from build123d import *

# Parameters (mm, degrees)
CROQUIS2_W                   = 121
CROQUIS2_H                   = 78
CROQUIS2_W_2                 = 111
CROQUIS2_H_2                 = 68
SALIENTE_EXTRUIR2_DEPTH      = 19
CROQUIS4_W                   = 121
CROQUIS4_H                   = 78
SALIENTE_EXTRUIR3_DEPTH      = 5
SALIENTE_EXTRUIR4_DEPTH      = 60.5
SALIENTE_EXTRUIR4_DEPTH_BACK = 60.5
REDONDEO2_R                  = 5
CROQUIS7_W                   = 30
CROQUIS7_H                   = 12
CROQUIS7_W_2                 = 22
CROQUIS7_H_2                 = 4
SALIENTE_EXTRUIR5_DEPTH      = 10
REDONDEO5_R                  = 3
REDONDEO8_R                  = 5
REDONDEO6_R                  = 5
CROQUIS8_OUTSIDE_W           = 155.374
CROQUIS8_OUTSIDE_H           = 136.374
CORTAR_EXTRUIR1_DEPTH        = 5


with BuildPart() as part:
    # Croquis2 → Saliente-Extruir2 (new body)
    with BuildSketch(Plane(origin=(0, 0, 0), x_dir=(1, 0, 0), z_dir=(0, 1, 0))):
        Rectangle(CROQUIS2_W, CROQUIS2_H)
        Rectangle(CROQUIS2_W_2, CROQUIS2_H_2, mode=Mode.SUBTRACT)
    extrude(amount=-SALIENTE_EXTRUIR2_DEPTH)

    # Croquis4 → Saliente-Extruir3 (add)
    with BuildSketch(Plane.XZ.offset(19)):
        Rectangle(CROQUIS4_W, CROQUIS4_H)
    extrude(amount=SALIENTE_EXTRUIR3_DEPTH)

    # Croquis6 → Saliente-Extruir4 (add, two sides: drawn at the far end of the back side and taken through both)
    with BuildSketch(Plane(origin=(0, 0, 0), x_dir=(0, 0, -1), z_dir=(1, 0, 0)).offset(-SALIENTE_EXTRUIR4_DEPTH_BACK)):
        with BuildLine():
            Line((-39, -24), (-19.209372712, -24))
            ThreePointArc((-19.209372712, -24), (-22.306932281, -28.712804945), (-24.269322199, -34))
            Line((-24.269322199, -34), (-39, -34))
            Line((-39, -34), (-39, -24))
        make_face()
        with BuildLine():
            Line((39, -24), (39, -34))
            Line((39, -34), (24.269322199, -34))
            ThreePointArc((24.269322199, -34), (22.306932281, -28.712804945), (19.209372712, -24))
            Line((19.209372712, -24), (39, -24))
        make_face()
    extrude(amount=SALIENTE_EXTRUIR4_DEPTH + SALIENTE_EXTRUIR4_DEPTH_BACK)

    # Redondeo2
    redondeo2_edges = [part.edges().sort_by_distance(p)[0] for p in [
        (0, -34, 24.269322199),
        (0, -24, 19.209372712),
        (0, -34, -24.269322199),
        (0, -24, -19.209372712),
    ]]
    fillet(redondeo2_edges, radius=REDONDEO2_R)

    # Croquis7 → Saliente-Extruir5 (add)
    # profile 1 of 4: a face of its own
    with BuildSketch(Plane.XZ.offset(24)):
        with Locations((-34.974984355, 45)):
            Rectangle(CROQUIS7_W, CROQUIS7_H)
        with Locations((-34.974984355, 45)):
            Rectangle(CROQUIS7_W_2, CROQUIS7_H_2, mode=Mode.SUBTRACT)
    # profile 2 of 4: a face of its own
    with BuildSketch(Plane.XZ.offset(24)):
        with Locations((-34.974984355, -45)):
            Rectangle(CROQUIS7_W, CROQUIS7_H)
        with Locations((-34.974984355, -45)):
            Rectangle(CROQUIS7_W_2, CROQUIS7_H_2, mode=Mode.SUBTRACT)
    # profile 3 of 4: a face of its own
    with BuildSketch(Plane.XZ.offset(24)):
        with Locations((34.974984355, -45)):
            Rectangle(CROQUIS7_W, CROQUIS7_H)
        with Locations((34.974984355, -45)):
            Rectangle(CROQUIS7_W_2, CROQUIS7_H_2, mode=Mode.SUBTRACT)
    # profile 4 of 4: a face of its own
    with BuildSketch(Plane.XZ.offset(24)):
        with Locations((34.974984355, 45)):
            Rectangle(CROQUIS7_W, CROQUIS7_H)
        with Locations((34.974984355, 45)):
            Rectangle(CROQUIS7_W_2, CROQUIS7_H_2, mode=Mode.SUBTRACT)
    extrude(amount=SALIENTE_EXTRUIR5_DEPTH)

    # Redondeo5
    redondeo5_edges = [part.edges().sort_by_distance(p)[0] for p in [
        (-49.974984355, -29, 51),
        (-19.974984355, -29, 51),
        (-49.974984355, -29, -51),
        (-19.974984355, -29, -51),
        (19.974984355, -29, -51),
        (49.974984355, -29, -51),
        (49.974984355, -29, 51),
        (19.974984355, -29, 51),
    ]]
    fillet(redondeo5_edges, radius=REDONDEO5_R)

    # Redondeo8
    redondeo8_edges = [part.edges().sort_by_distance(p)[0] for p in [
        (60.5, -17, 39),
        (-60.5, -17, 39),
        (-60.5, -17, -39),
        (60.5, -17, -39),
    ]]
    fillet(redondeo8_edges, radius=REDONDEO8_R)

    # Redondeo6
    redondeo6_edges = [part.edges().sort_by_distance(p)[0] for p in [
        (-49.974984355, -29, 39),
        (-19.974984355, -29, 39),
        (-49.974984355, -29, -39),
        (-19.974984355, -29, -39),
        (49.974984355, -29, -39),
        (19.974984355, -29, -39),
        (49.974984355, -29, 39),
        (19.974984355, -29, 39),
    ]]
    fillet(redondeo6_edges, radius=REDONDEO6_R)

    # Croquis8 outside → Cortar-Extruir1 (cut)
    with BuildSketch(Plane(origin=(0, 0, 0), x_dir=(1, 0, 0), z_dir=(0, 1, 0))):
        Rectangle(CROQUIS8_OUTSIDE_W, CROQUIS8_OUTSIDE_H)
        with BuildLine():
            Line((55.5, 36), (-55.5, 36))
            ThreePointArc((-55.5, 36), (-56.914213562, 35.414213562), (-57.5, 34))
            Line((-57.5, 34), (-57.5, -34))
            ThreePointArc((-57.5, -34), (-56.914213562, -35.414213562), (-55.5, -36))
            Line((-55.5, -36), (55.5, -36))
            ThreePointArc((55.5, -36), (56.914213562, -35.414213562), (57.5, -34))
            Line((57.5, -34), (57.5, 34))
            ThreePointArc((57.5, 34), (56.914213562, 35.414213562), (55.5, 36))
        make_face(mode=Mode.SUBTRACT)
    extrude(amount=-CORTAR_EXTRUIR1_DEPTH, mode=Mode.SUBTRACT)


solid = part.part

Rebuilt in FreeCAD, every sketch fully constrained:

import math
import FreeCAD as App
import Part
import Sketcher

V = App.Vector


def edges_at(feature, points):
    """Names of the edges that pass closest to the given points."""
    edges = feature.Shape.Edges
    near = lambda p: min(range(len(edges)), key=lambda i: edges[i].distToShape(Part.Vertex(*p))[0])
    return sorted({f"Edge{near(p) + 1}" for p in points})

doc = App.newDocument("Part")
body = doc.addObject("PartDesign::Body", "Body")

# Sketch on XZ plane
sketch1 = body.newObject("Sketcher::SketchObject", "Sketch")
sketch1.AttachmentSupport = (doc.getObject("XZ_Plane"), [""])
sketch1.MapMode = "FlatFace"
sketch1.addGeometry([
    Part.LineSegment(V(-60, -39, 0), V(-60, 39, 0)),  # 0
    Part.LineSegment(V(-60, 39, 0), V(60, 39, 0)),  # 1
    Part.LineSegment(V(60, 39, 0), V(60, -39, 0)),  # 2
    Part.LineSegment(V(60, -39, 0), V(-60, -39, 0)),  # 3
    Part.LineSegment(V(56, 34, 0), V(-56, 34, 0)),  # 4
    Part.LineSegment(V(-56, 34, 0), V(-56, -34, 0)),  # 5
    Part.LineSegment(V(-56, -34, 0), V(56, -34, 0)),  # 6
    Part.LineSegment(V(56, -34, 0), V(56, 34, 0)),  # 7
], False)
sketch1.addConstraint([
    Sketcher.Constraint("Coincident", 0, 2, 1, 1),
    Sketcher.Constraint("Coincident", 1, 2, 2, 1),
    Sketcher.Constraint("Coincident", 2, 2, 3, 1),
    Sketcher.Constraint("Coincident", 3, 2, 0, 1),
    Sketcher.Constraint("Coincident", 4, 2, 5, 1),
    Sketcher.Constraint("Coincident", 5, 2, 6, 1),
    Sketcher.Constraint("Coincident", 6, 2, 7, 1),
    Sketcher.Constraint("Coincident", 7, 2, 4, 1),
    Sketcher.Constraint("Vertical", 0),
    Sketcher.Constraint("Horizontal", 1),
    Sketcher.Constraint("Vertical", 2),
    Sketcher.Constraint("Horizontal", 3),
    Sketcher.Constraint("Horizontal", 4),
    Sketcher.Constraint("Vertical", 5),
    Sketcher.Constraint("Horizontal", 6),
    Sketcher.Constraint("Vertical", 7),
    Sketcher.Constraint("Symmetric", 0, 2, 2, 2, -1, 1),
    Sketcher.Constraint("Symmetric", 4, 2, 6, 2, -1, 1),
    Sketcher.Constraint("DistanceX", 1, 1, 1, 2, 121.0),
    Sketcher.Constraint("DistanceX", 4, 2, 4, 1, 111.0),
    Sketcher.Constraint("DistanceY", 0, 1, 0, 2, 78.0),
    Sketcher.Constraint("DistanceY", 5, 2, 5, 1, 68.0),
])
pad1 = body.newObject("PartDesign::Pad", "Pad")
pad1.Profile = sketch1
pad1.Length = 19

# Sketch on XZ plane
sketch2 = body.newObject("Sketcher::SketchObject", "Sketch001")
sketch2.AttachmentSupport = (doc.getObject("XZ_Plane"), [""])
sketch2.MapMode = "FlatFace"
sketch2.AttachmentOffset = App.Placement(V(0, 0, 19), App.Rotation())
sketch2.addGeometry([
    Part.LineSegment(V(-60, 39, 0), V(-60, -39, 0)),
    Part.LineSegment(V(-60, -39, 0), V(60, -39, 0)),
    Part.LineSegment(V(60, -39, 0), V(60, 39, 0)),
    Part.LineSegment(V(60, 39, 0), V(-60, 39, 0)),
], False)
sketch2.addConstraint([
    Sketcher.Constraint("Coincident", 0, 2, 1, 1),
    Sketcher.Constraint("Coincident", 1, 2, 2, 1),
    Sketcher.Constraint("Coincident", 2, 2, 3, 1),
    Sketcher.Constraint("Coincident", 3, 2, 0, 1),
    Sketcher.Constraint("Vertical", 0),
    Sketcher.Constraint("Horizontal", 1),
    Sketcher.Constraint("Vertical", 2),
    Sketcher.Constraint("Horizontal", 3),
    Sketcher.Constraint("Symmetric", 0, 2, 2, 2, -1, 1),
    Sketcher.Constraint("DistanceX", 1, 1, 1, 2, 121.0),
    Sketcher.Constraint("DistanceY", 0, 2, 0, 1, 78.0),
])
pad2 = body.newObject("PartDesign::Pad", "Pad001")
pad2.Profile = sketch2
pad2.Length = 5

# Sketch on YZ plane
sketch3 = body.newObject("Sketcher::SketchObject", "Sketch002")
sketch3.AttachmentSupport = (doc.getObject("YZ_Plane"), [""])
sketch3.MapMode = "FlatFace"
sketch3.addGeometry([
    Part.LineSegment(V(-24, 19, 0), V(-24, 39, 0)),  # 0
    Part.LineSegment(V(-24, 39, 0), V(-34, 39, 0)),  # 1
    Part.LineSegment(V(-34, 39, 0), V(-34, 24, 0)),  # 2
    Part.ArcOfCircle(Part.Circle(V(-40, 0, 0), V(0, 0, 1), 25), math.radians(50), math.radians(76)),  # 3
    Part.LineSegment(V(-34, -39, 0), V(-24, -39, 0)),  # 4
    Part.LineSegment(V(-24, -39, 0), V(-24, -19, 0)),  # 5
    Part.ArcOfCircle(Part.Circle(V(-40, 0, 0), V(0, 0, 1), 25), math.radians(-76), math.radians(-50)),  # 6
    Part.LineSegment(V(-34, -24, 0), V(-34, -39, 0)),  # 7
], False)
sketch3.addConstraint([
    Sketcher.Constraint("Coincident", 0, 2, 1, 1),
    Sketcher.Constraint("Coincident", 1, 2, 2, 1),
    Sketcher.Constraint("Coincident", 2, 2, 3, 2),
    Sketcher.Constraint("Coincident", 3, 1, 0, 1),
    Sketcher.Constraint("Coincident", 4, 2, 5, 1),
    Sketcher.Constraint("Coincident", 5, 2, 6, 2),
    Sketcher.Constraint("Coincident", 6, 1, 7, 1),
    Sketcher.Constraint("Coincident", 7, 2, 4, 1),
    Sketcher.Constraint("Vertical", 0),
    Sketcher.Constraint("Horizontal", 1),
    Sketcher.Constraint("Vertical", 2),
    Sketcher.Constraint("Horizontal", 4),
    Sketcher.Constraint("Vertical", 5),
    Sketcher.Constraint("Vertical", 7),
    Sketcher.Constraint("Coincident", 6, 3, 3, 3),
    Sketcher.Constraint("Equal", 3, 6),
    Sketcher.Constraint("Symmetric", 0, 2, 4, 2, -1),
    Sketcher.Constraint("Symmetric", 2, 2, 6, 1, -1),
    Sketcher.Constraint("Radius", 3, 25.0),
    Sketcher.Constraint("DistanceX", 1, 2, 1, 1, 10.0),
    Sketcher.Constraint("DistanceX", 3, 3, -1, 1, 40.0),
    Sketcher.Constraint("DistanceX", 0, 2, -1, 1, 24.0),
    Sketcher.Constraint("DistanceY", -1, 1, 0, 2, 39.0),
])
pad3 = body.newObject("PartDesign::Pad", "Pad002")
pad3.Profile = sketch3
pad3.Type = "TwoLengths"
pad3.Length = 60.5
pad3.Length2 = 60.5
doc.recompute()

fillet = body.newObject("PartDesign::Fillet", "Fillet")
fillet.Base = (pad3, edges_at(pad3, [
    (0, -34, 24.269),
    (0, -24, 19.209),
    (0, -34, -24.269),
    (0, -24, -19.209),
]))
fillet.Radius = 5

# Sketch on XZ plane
sketch4 = body.newObject("Sketcher::SketchObject", "Sketch003")
sketch4.AttachmentSupport = (doc.getObject("XZ_Plane"), [""])
sketch4.MapMode = "FlatFace"
sketch4.AttachmentOffset = App.Placement(V(0, 0, 24), App.Rotation())
sketch4.addGeometry([
    Part.LineSegment(V(-50, 51, 0), V(-50, 39, 0)),  # 0
    Part.LineSegment(V(-50, 39, 0), V(-20, 39, 0)),  # 1
    Part.LineSegment(V(-20, 39, 0), V(-20, 51, 0)),  # 2
    Part.LineSegment(V(-20, 51, 0), V(-50, 51, 0)),  # 3
    Part.LineSegment(V(-24, 43, 0), V(-46, 43, 0)),  # 4
    Part.LineSegment(V(-46, 43, 0), V(-46, 47, 0)),  # 5
    Part.LineSegment(V(-46, 47, 0), V(-24, 47, 0)),  # 6
    Part.LineSegment(V(-24, 47, 0), V(-24, 43, 0)),  # 7
    Part.LineSegment(V(-50, -39, 0), V(-50, -51, 0)),  # 8
    Part.LineSegment(V(-50, -51, 0), V(-20, -51, 0)),  # 9
    Part.LineSegment(V(-20, -51, 0), V(-20, -39, 0)),  # 10
    Part.LineSegment(V(-20, -39, 0), V(-50, -39, 0)),  # 11
    Part.LineSegment(V(-24, -47, 0), V(-46, -47, 0)),  # 12
    Part.LineSegment(V(-46, -47, 0), V(-46, -43, 0)),  # 13
    Part.LineSegment(V(-46, -43, 0), V(-24, -43, 0)),  # 14
    Part.LineSegment(V(-24, -43, 0), V(-24, -47, 0)),  # 15
    Part.LineSegment(V(20, -39, 0), V(20, -51, 0)),  # 16
    Part.LineSegment(V(20, -51, 0), V(50, -51, 0)),  # 17
    Part.LineSegment(V(50, -51, 0), V(50, -39, 0)),  # 18
    Part.LineSegment(V(50, -39, 0), V(20, -39, 0)),  # 19
    Part.LineSegment(V(46, -47, 0), V(24, -47, 0)),  # 20
    Part.LineSegment(V(24, -47, 0), V(24, -43, 0)),  # 21
    Part.LineSegment(V(24, -43, 0), V(46, -43, 0)),  # 22
    Part.LineSegment(V(46, -43, 0), V(46, -47, 0)),  # 23
    Part.LineSegment(V(20, 51, 0), V(20, 39, 0)),  # 24
    Part.LineSegment(V(20, 39, 0), V(50, 39, 0)),  # 25
    Part.LineSegment(V(50, 39, 0), V(50, 51, 0)),  # 26
    Part.LineSegment(V(50, 51, 0), V(20, 51, 0)),  # 27
    Part.LineSegment(V(46, 43, 0), V(24, 43, 0)),  # 28
    Part.LineSegment(V(24, 43, 0), V(24, 47, 0)),  # 29
    Part.LineSegment(V(24, 47, 0), V(46, 47, 0)),  # 30
    Part.LineSegment(V(46, 47, 0), V(46, 43, 0)),  # 31
], False)
sketch4.addConstraint([
    Sketcher.Constraint("Coincident", 0, 2, 1, 1),
    Sketcher.Constraint("Coincident", 1, 2, 2, 1),
    Sketcher.Constraint("Coincident", 2, 2, 3, 1),
    Sketcher.Constraint("Coincident", 3, 2, 0, 1),
    Sketcher.Constraint("Coincident", 4, 2, 5, 1),
    Sketcher.Constraint("Coincident", 5, 2, 6, 1),
    Sketcher.Constraint("Coincident", 6, 2, 7, 1),
    Sketcher.Constraint("Coincident", 7, 2, 4, 1),
    Sketcher.Constraint("Coincident", 8, 2, 9, 1),
    Sketcher.Constraint("Coincident", 9, 2, 10, 1),
    Sketcher.Constraint("Coincident", 10, 2, 11, 1),
    Sketcher.Constraint("Coincident", 11, 2, 8, 1),
    Sketcher.Constraint("Coincident", 12, 2, 13, 1),
    Sketcher.Constraint("Coincident", 13, 2, 14, 1),
    Sketcher.Constraint("Coincident", 14, 2, 15, 1),
    Sketcher.Constraint("Coincident", 15, 2, 12, 1),
    Sketcher.Constraint("Coincident", 16, 2, 17, 1),
    Sketcher.Constraint("Coincident", 17, 2, 18, 1),
    Sketcher.Constraint("Coincident", 18, 2, 19, 1),
    Sketcher.Constraint("Coincident", 19, 2, 16, 1),
    Sketcher.Constraint("Coincident", 20, 2, 21, 1),
    Sketcher.Constraint("Coincident", 21, 2, 22, 1),
    Sketcher.Constraint("Coincident", 22, 2, 23, 1),
    Sketcher.Constraint("Coincident", 23, 2, 20, 1),
    Sketcher.Constraint("Coincident", 24, 2, 25, 1),
    Sketcher.Constraint("Coincident", 25, 2, 26, 1),
    Sketcher.Constraint("Coincident", 26, 2, 27, 1),
    Sketcher.Constraint("Coincident", 27, 2, 24, 1),
    Sketcher.Constraint("Coincident", 28, 2, 29, 1),
    Sketcher.Constraint("Coincident", 29, 2, 30, 1),
    Sketcher.Constraint("Coincident", 30, 2, 31, 1),
    Sketcher.Constraint("Coincident", 31, 2, 28, 1),
    Sketcher.Constraint("Vertical", 0),
    Sketcher.Constraint("Horizontal", 1),
    Sketcher.Constraint("Vertical", 2),
    Sketcher.Constraint("Horizontal", 3),
    Sketcher.Constraint("Horizontal", 4),
    Sketcher.Constraint("Vertical", 5),
    Sketcher.Constraint("Horizontal", 6),
    Sketcher.Constraint("Vertical", 7),
    Sketcher.Constraint("Vertical", 8),
    Sketcher.Constraint("Horizontal", 9),
    Sketcher.Constraint("Vertical", 10),
    Sketcher.Constraint("Horizontal", 11),
    Sketcher.Constraint("Horizontal", 12),
    Sketcher.Constraint("Vertical", 13),
    Sketcher.Constraint("Horizontal", 14),
    Sketcher.Constraint("Vertical", 15),
    Sketcher.Constraint("Vertical", 16),
    Sketcher.Constraint("Horizontal", 17),
    Sketcher.Constraint("Vertical", 18),
    Sketcher.Constraint("Horizontal", 19),
    Sketcher.Constraint("Horizontal", 20),
    Sketcher.Constraint("Vertical", 21),
    Sketcher.Constraint("Horizontal", 22),
    Sketcher.Constraint("Vertical", 23),
    Sketcher.Constraint("Vertical", 24),
    Sketcher.Constraint("Horizontal", 25),
    Sketcher.Constraint("Vertical", 26),
    Sketcher.Constraint("Horizontal", 27),
    Sketcher.Constraint("Horizontal", 28),
    Sketcher.Constraint("Vertical", 29),
    Sketcher.Constraint("Horizontal", 30),
    Sketcher.Constraint("Vertical", 31),
    Sketcher.Constraint("Symmetric", 2, 2, 16, 2, -1, 1),
    Sketcher.Constraint("Symmetric", 0, 2, 18, 2, -1, 1),
    Sketcher.Constraint("Symmetric", 6, 2, 20, 2, -1, 1),
    Sketcher.Constraint("Symmetric", 4, 2, 22, 2, -1, 1),
    Sketcher.Constraint("Symmetric", 10, 2, 24, 2, -1, 1),
    Sketcher.Constraint("Symmetric", 8, 2, 26, 2, -1, 1),
    Sketcher.Constraint("Symmetric", 14, 2, 28, 2, -1, 1),
    Sketcher.Constraint("Symmetric", 12, 2, 30, 2, -1, 1),
    Sketcher.Constraint("Symmetric", 9, 2, 16, 2, -2),
    Sketcher.Constraint("Symmetric", 11, 2, 18, 2, -2),
    Sketcher.Constraint("Symmetric", 15, 2, 20, 2, -2),
    Sketcher.Constraint("Symmetric", 13, 2, 22, 2, -2),
    Sketcher.Constraint("DistanceX", 1, 1, 1, 2, 30.0),
    Sketcher.Constraint("DistanceX", 4, 2, 4, 1, 22.0),
    Sketcher.Constraint("DistanceY", 0, 2, 0, 1, 12.0),
    Sketcher.Constraint("DistanceY", 5, 1, 5, 2, 4.0),
    Sketcher.Constraint("DistanceY", -1, 1, 0, 2, 39.0),
    Sketcher.Constraint("DistanceY", -1, 1, 4, 2, 43.0),
    Sketcher.Constraint("DistanceX", 0, 2, 4, 2, 4.0),
    Sketcher.Constraint("DistanceX", 9, 2, 16, 2, 39.949969),
])
pad4 = body.newObject("PartDesign::Pad", "Pad003")
pad4.Profile = sketch4
pad4.Length = 10
doc.recompute()

fillet2 = body.newObject("PartDesign::Fillet", "Fillet001")
fillet2.Base = (pad4, edges_at(pad4, [
    (-49.975, -29, 51),
    (-19.975, -29, 51),
    (-49.975, -29, -51),
    (-19.975, -29, -51),
    (19.975, -29, -51),
    (49.975, -29, -51),
    (49.975, -29, 51),
    (19.975, -29, 51),
]))
fillet2.Radius = 3
doc.recompute()

fillet3 = body.newObject("PartDesign::Fillet", "Fillet002")
fillet3.Base = (fillet2, edges_at(fillet2, [
    (60.5, -17, 39),
    (-60.5, -17, 39),
    (-60.5, -17, -39),
    (60.5, -17, -39),
]))
fillet3.Radius = 5
doc.recompute()

fillet4 = body.newObject("PartDesign::Fillet", "Fillet003")
fillet4.Base = (fillet3, edges_at(fillet3, [
    (-49.975, -29, 39),
    (-19.975, -29, 39),
    (-49.975, -29, -39),
    (-19.975, -29, -39),
    (49.975, -29, -39),
    (19.975, -29, -39),
    (49.975, -29, 39),
    (19.975, -29, 39),
]))
fillet4.Radius = 5

# Sketch on XZ plane
sketch5 = body.newObject("Sketcher::SketchObject", "Sketch004")
sketch5.AttachmentSupport = (doc.getObject("XZ_Plane"), [""])
sketch5.MapMode = "FlatFace"
sketch5.addGeometry([
    Part.LineSegment(V(-77.7, -68.2, 0), V(-77.7, 68.2, 0)),  # 0
    Part.LineSegment(V(-77.7, 68.2, 0), V(77.7, 68.2, 0)),  # 1
    Part.LineSegment(V(77.7, 68.2, 0), V(77.7, -68.2, 0)),  # 2
    Part.LineSegment(V(77.7, -68.2, 0), V(-77.7, -68.2, 0)),  # 3
    Part.LineSegment(V(-55.5, -36, 0), V(55.5, -36, 0)),  # 4
    Part.ArcOfCircle(Part.Circle(V(55.5, -34, 0), V(0, 0, 1), 2), math.radians(-90), math.radians(0)),  # 5
    Part.LineSegment(V(57.5, -34, 0), V(57.5, 34, 0)),  # 6
    Part.ArcOfCircle(Part.Circle(V(55.5, 34, 0), V(0, 0, 1), 2), math.radians(0), math.radians(90)),  # 7
    Part.LineSegment(V(55.5, 36, 0), V(-55.5, 36, 0)),  # 8
    Part.ArcOfCircle(Part.Circle(V(-55.5, 34, 0), V(0, 0, 1), 2), math.radians(90), math.radians(180)),  # 9
    Part.LineSegment(V(-57.5, 34, 0), V(-57.5, -34, 0)),  # 10
    Part.ArcOfCircle(Part.Circle(V(-55.5, -34, 0), V(0, 0, 1), 2), math.radians(-180), math.radians(-90)),  # 11
], False)
sketch5.addConstraint([
    Sketcher.Constraint("Coincident", 0, 2, 1, 1),
    Sketcher.Constraint("Coincident", 1, 2, 2, 1),
    Sketcher.Constraint("Coincident", 2, 2, 3, 1),
    Sketcher.Constraint("Coincident", 3, 2, 0, 1),
    Sketcher.Constraint("Tangent", 4, 2, 5, 1),
    Sketcher.Constraint("Tangent", 5, 2, 6, 1),
    Sketcher.Constraint("Tangent", 6, 2, 7, 1),
    Sketcher.Constraint("Tangent", 7, 2, 8, 1),
    Sketcher.Constraint("Tangent", 8, 2, 9, 1),
    Sketcher.Constraint("Tangent", 9, 2, 10, 1),
    Sketcher.Constraint("Tangent", 10, 2, 11, 1),
    Sketcher.Constraint("Tangent", 11, 2, 4, 1),
    Sketcher.Constraint("Vertical", 0),
    Sketcher.Constraint("Horizontal", 1),
    Sketcher.Constraint("Vertical", 2),
    Sketcher.Constraint("Horizontal", 3),
    Sketcher.Constraint("Horizontal", 4),
    Sketcher.Constraint("Vertical", 6),
    Sketcher.Constraint("Horizontal", 8),
    Sketcher.Constraint("Vertical", 10),
    Sketcher.Constraint("Equal", 5, 7),
    Sketcher.Constraint("Equal", 7, 9),
    Sketcher.Constraint("Equal", 9, 11),
    Sketcher.Constraint("Symmetric", 5, 3, 9, 3, -1, 1),
    Sketcher.Constraint("Symmetric", 0, 2, 2, 2, -1, 1),
    Sketcher.Constraint("Radius", 5, 2.0),
    Sketcher.Constraint("DistanceX", 4, 1, 4, 2, 111.0),
    Sketcher.Constraint("DistanceY", 6, 1, 6, 2, 68.0),
    Sketcher.Constraint("DistanceX", 1, 1, 1, 2, 155.374),
    Sketcher.Constraint("DistanceY", 0, 1, 0, 2, 136.374),
])
pocket1 = body.newObject("PartDesign::Pocket", "Pocket")
pocket1.Profile = sketch5
pocket1.Length = 5
pocket1.Reversed = True

doc.recompute()
